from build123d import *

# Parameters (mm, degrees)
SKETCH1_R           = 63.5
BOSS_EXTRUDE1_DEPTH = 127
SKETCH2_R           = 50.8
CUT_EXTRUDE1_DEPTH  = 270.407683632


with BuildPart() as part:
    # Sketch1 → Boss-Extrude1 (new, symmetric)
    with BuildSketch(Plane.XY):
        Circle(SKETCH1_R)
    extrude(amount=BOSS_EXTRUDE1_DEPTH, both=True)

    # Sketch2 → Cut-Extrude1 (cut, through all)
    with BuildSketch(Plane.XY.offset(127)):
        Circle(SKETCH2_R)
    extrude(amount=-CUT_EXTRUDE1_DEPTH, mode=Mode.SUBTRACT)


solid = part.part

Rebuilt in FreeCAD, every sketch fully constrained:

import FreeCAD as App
import Part
import Sketcher

V = App.Vector
Q = App.Units.Quantity

doc = App.newDocument("Part")
body = doc.addObject("PartDesign::Body", "Body")

# Sketch on XY plane
sketch1 = body.newObject("Sketcher::SketchObject", "Sketch")
sketch1.AttachmentSupport = (doc.getObject("XY_Plane"), [""])
sketch1.MapMode = "FlatFace"
sketch1.addGeometry(Part.Circle(V(0, 0, 0), V(0, 0, 1), 64), False)
sketch1.addConstraint([
    Sketcher.Constraint("Coincident", 0, 3, -1, 1),
    Sketcher.Constraint("Diameter", 0, Q("5 in")),
])
pad1 = body.newObject("PartDesign::Pad", "Pad")
pad1.Profile = sketch1
pad1.Length = Q("10 in")
pad1.Midplane = True

# Sketch on XY plane
sketch2 = body.newObject("Sketcher::SketchObject", "Sketch001")
sketch2.AttachmentSupport = (doc.getObject("XY_Plane"), [""])
sketch2.MapMode = "FlatFace"
sketch2.AttachmentOffset = App.Placement(V(0, 0, 5 * 25.4), App.Rotation())
sketch2.addGeometry(Part.Circle(V(0, 0, 0), V(0, 0, 1), 51), False)
sketch2.addConstraint([
    Sketcher.Constraint("Coincident", 0, 3, -1, 1),
    Sketcher.Constraint("Diameter", 0, Q("4 in")),
])
pocket1 = body.newObject("PartDesign::Pocket", "Pocket")
pocket1.Profile = sketch2
pocket1.Type = "ThroughAll"

doc.recompute()
